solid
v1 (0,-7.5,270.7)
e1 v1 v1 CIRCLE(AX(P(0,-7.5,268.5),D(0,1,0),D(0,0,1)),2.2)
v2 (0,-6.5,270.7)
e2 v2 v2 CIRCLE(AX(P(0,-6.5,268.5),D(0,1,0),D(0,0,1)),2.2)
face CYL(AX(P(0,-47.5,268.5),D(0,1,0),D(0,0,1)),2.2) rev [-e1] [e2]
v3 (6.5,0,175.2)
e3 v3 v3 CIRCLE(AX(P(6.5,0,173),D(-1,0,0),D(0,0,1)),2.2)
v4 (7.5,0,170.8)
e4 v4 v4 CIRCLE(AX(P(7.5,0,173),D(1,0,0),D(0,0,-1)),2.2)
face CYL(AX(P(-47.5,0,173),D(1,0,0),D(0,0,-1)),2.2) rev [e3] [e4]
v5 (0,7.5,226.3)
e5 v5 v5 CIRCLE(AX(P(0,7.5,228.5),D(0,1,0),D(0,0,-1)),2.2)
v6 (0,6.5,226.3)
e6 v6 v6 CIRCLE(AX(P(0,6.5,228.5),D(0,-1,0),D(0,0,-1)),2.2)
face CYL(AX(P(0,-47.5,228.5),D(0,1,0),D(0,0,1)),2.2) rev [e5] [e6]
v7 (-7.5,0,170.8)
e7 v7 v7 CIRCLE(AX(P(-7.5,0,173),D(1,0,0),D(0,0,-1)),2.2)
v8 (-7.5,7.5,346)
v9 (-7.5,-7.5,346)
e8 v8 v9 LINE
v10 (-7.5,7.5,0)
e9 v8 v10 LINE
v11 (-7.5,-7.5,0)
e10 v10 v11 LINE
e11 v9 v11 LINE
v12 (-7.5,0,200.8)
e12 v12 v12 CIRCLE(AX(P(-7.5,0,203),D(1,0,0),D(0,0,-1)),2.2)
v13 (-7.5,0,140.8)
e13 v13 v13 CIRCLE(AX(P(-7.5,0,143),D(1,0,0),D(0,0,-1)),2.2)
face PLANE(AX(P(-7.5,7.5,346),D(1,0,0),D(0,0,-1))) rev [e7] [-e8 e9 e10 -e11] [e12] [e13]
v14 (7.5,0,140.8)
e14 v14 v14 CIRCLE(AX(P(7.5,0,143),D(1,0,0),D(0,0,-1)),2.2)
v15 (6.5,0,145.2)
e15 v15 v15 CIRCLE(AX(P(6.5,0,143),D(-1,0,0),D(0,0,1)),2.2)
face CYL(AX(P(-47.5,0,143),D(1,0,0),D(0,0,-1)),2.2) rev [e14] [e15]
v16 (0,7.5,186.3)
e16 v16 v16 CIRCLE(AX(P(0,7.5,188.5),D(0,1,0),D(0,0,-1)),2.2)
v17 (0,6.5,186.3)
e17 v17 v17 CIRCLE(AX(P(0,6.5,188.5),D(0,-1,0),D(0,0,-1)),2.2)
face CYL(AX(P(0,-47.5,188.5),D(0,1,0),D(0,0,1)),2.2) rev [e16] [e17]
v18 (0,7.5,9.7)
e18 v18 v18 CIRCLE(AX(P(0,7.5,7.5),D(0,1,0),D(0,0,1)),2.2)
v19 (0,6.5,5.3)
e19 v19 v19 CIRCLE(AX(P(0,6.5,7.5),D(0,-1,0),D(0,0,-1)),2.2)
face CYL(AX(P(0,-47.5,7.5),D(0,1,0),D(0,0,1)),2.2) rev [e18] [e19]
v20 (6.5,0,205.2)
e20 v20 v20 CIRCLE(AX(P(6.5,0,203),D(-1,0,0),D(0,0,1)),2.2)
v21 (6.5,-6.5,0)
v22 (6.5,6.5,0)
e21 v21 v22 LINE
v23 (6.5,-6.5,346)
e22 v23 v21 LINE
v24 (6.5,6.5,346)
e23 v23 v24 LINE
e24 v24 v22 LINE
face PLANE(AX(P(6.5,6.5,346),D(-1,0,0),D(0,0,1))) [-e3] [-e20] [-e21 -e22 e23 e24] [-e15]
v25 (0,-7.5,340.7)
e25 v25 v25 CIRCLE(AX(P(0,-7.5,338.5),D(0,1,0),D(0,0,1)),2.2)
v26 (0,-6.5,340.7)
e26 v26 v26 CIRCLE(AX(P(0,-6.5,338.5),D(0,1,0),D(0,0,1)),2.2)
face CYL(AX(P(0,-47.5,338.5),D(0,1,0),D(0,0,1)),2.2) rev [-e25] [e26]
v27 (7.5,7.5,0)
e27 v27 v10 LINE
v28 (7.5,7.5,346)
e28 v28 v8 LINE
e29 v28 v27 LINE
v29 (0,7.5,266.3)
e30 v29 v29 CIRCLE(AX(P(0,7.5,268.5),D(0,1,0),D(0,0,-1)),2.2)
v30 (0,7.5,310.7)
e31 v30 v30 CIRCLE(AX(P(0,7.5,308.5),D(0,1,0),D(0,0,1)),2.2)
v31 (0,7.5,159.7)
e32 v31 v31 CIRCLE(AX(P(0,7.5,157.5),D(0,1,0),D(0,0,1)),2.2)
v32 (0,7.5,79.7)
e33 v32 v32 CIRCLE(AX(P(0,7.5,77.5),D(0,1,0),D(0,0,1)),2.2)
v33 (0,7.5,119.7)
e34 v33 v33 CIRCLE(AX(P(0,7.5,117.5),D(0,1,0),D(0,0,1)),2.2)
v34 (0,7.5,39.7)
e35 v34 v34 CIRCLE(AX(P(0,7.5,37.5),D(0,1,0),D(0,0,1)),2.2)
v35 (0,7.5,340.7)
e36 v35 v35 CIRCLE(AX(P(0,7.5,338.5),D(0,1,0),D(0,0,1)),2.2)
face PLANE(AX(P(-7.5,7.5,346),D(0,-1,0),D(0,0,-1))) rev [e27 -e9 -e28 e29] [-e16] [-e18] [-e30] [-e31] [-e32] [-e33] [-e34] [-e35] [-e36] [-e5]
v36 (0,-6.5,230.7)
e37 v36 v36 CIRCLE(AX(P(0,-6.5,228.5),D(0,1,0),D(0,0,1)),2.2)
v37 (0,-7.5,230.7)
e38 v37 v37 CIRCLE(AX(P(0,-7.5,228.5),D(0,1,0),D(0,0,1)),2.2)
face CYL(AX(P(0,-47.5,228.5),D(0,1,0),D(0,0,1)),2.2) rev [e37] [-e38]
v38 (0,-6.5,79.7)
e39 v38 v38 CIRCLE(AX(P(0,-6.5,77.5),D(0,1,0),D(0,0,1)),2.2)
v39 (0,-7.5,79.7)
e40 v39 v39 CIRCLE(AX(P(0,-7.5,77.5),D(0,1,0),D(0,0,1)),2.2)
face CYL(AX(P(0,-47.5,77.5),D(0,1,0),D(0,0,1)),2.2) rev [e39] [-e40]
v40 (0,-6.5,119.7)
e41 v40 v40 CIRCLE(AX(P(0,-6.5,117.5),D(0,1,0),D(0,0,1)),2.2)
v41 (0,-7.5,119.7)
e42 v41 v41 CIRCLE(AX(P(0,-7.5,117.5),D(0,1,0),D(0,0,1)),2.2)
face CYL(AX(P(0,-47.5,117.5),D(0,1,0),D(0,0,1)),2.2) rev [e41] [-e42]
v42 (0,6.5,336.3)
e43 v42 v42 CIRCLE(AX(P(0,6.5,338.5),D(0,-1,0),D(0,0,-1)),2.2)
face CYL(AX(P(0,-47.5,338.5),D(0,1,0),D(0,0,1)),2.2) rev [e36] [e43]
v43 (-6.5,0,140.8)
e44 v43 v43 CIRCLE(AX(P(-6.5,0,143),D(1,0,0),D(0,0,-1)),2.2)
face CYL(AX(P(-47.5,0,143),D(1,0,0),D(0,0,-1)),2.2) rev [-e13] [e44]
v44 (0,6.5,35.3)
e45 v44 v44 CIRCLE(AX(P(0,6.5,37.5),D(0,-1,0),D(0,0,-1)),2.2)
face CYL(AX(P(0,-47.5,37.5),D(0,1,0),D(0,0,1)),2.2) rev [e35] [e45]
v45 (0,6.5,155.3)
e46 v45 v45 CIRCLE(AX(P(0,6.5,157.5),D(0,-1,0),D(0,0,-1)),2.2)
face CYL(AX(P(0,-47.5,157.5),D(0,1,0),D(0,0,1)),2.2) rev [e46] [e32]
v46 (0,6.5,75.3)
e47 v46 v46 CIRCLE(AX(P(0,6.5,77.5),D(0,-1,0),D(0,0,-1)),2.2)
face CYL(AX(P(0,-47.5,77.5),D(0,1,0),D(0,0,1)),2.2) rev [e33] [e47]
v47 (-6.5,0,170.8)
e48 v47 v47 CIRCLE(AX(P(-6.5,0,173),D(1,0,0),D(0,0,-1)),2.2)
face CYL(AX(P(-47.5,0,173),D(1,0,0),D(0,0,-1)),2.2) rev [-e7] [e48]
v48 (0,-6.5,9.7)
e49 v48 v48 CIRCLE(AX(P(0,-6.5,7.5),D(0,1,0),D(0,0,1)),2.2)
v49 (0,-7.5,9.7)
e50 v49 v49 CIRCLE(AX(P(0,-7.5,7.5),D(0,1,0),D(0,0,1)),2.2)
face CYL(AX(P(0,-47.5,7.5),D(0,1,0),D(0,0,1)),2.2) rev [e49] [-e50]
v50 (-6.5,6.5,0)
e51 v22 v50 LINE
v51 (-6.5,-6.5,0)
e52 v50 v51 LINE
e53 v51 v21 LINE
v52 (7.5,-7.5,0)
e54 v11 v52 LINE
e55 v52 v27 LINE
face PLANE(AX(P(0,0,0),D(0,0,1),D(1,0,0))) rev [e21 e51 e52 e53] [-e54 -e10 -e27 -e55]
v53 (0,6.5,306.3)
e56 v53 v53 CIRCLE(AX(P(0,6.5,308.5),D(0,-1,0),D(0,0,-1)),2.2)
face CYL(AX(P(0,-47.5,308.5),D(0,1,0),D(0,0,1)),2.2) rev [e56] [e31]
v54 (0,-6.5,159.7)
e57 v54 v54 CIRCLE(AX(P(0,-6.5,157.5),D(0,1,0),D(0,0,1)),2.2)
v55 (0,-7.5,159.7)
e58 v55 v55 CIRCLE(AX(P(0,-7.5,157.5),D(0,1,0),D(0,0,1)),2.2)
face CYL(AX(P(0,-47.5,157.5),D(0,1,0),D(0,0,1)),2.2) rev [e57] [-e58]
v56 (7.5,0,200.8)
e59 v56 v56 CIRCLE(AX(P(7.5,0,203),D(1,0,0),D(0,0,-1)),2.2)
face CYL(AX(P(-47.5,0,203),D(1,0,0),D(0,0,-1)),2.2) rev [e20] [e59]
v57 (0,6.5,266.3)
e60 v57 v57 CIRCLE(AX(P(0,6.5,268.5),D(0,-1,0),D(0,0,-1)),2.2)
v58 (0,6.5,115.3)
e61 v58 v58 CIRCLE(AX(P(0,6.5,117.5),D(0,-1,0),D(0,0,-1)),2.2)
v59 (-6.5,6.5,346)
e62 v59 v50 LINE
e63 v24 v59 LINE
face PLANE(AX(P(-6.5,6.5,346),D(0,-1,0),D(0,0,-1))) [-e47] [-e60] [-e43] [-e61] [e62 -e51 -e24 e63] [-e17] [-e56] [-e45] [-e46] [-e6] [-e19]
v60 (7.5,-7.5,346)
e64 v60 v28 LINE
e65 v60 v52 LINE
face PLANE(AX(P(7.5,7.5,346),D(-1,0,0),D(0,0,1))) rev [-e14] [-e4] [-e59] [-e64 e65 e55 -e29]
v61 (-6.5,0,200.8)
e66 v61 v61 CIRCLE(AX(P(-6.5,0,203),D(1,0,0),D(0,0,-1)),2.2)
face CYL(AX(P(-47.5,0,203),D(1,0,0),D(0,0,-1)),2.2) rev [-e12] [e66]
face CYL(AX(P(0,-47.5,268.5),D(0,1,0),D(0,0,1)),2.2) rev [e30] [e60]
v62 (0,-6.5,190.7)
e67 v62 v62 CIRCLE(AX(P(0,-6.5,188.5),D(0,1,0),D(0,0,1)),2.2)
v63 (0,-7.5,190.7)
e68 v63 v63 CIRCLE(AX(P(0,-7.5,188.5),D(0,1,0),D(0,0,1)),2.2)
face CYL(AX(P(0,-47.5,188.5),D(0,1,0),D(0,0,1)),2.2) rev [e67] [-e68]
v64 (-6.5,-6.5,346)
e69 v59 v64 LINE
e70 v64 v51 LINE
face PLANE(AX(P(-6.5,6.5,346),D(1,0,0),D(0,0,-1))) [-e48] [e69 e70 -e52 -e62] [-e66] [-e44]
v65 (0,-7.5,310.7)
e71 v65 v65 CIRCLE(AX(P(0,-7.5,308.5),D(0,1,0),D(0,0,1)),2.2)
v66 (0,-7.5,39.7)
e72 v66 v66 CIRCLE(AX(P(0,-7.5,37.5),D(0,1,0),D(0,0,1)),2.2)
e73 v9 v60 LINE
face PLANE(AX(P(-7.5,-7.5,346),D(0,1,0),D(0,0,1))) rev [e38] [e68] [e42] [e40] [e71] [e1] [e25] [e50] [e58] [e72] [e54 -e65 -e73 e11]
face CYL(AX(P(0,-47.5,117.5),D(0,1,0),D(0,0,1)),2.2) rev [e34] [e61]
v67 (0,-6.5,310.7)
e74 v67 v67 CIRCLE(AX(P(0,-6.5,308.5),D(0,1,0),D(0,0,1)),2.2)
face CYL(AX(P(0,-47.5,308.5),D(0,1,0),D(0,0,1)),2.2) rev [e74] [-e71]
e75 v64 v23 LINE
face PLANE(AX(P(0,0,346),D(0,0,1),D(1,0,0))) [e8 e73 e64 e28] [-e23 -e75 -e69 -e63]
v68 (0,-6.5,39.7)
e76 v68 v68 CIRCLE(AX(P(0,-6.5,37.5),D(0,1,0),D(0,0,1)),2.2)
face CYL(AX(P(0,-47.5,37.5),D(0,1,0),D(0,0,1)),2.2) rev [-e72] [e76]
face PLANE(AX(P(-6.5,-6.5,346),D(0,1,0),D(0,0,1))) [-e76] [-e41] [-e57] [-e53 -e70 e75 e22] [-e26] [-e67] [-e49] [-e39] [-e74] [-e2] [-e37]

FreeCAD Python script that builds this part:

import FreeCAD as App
import Part
import Sketcher
from FreeCAD import Vector
Q = App.Units.Quantity


def add_polygon(sketch, points):
    """Adds a closed chain of lines whose ends are joined by coincident constraints."""
    first, n = sketch.GeometryCount, len(points)
    for a, b in zip(points, points[1:] + points[:1]):
        sketch.addGeometry(Part.LineSegment(App.Vector(*a, 0), App.Vector(*b, 0)), False)
    for i in range(n):
        sketch.addConstraint(Sketcher.Constraint("Coincident", first + i, 2, first + (i + 1) % n, 1))

doc = App.newDocument("Part")
body = doc.addObject("PartDesign::Body", "Body")

sketch1 = doc.addObject("Sketcher::SketchObject", "Sketch")
body.addObject(sketch1)
sketch1.AttachmentSupport = (doc.XY_Plane, [""])
sketch1.MapMode = "FlatFace"
add_polygon(sketch1, [(-8, 8), (-8, -8), (8, -8), (8, 8)])
add_polygon(sketch1, [(6, -6), (-6, -6), (-6, 6), (6, 6)])
sketch1.addConstraint(Sketcher.Constraint("Vertical", 0))
sketch1.addConstraint(Sketcher.Constraint("Horizontal", 1))
sketch1.addConstraint(Sketcher.Constraint("Vertical", 2))
sketch1.addConstraint(Sketcher.Constraint("Horizontal", 3))
sketch1.addConstraint(Sketcher.Constraint("Horizontal", 4))
sketch1.addConstraint(Sketcher.Constraint("Vertical", 5))
sketch1.addConstraint(Sketcher.Constraint("Horizontal", 6))
sketch1.addConstraint(Sketcher.Constraint("Vertical", 7))
sketch1.addConstraint(Sketcher.Constraint("Symmetric", 0, 2, 2, 2, -1, 1))
sketch1.addConstraint(Sketcher.Constraint("Symmetric", 4, 2, 6, 2, -1, 1))
sketch1.addConstraint(Sketcher.Constraint("Equal", 3, 0))
sketch1.addConstraint(Sketcher.Constraint("Equal", 6, 5))
sketch1.addConstraint(Sketcher.Constraint("DistanceX", 1, 1, 1, 2, Q("15 mm")))
sketch1.addConstraint(Sketcher.Constraint("DistanceX", 4, 2, 4, 1, Q("13 mm")))
pad1 = doc.addObject("PartDesign::Pad", "Pad")
body.addObject(pad1)
pad1.Profile = sketch1
pad1.Length = 346

sketch2 = doc.addObject("Sketcher::SketchObject", "Sketch001")
body.addObject(sketch2)
sketch2.AttachmentSupport = (doc.XZ_Plane, [""])
sketch2.MapMode = "FlatFace"
sketch2.AttachmentOffset = App.Placement(Vector(0, 0, -7.5), App.Rotation())
sketch2.addGeometry(Part.Circle(Vector(0, 338.5, 0), Vector(0, 0, 1), 2.2), False)
sketch2.addGeometry(Part.Circle(Vector(0, 7.5, 0), Vector(0, 0, 1), 2.2), False)
sketch2.addGeometry(Part.Circle(Vector(0, 37.5, 0), Vector(0, 0, 1), 2.2), False)
sketch2.addGeometry(Part.Circle(Vector(0, 308.5, 0), Vector(0, 0, 1), 2.2), False)
sketch2.addGeometry(Part.Circle(Vector(0, 77.5, 0), Vector(0, 0, 1), 2.2), False)
sketch2.addGeometry(Part.Circle(Vector(0, 117.5, 0), Vector(0, 0, 1), 2.2), False)
sketch2.addGeometry(Part.Circle(Vector(0, 228.5, 0), Vector(0, 0, 1), 2.2), False)
sketch2.addGeometry(Part.Circle(Vector(0, 268.5, 0), Vector(0, 0, 1), 2.2), False)
sketch2.addGeometry(Part.Circle(Vector(0, 157.5, 0), Vector(0, 0, 1), 2.2), False)
sketch2.addGeometry(Part.Circle(Vector(0, 188.5, 0), Vector(0, 0, 1), 2.2), False)
sketch2.addConstraint(Sketcher.Constraint("Equal", 0, 1))
sketch2.addConstraint(Sketcher.Constraint("Equal", 1, 2))
sketch2.addConstraint(Sketcher.Constraint("Equal", 2, 3))
sketch2.addConstraint(Sketcher.Constraint("Equal", 3, 4))
sketch2.addConstraint(Sketcher.Constraint("Equal", 4, 5))
sketch2.addConstraint(Sketcher.Constraint("Equal", 5, 6))
sketch2.addConstraint(Sketcher.Constraint("Equal", 6, 7))
sketch2.addConstraint(Sketcher.Constraint("Equal", 7, 8))
sketch2.addConstraint(Sketcher.Constraint("Equal", 8, 9))
sketch2.addConstraint(Sketcher.Constraint("PointOnObject", 0, 3, -2))
sketch2.addConstraint(Sketcher.Constraint("PointOnObject", 1, 3, -2))
sketch2.addConstraint(Sketcher.Constraint("PointOnObject", 2, 3, -2))
sketch2.addConstraint(Sketcher.Constraint("PointOnObject", 3, 3, -2))
sketch2.addConstraint(Sketcher.Constraint("PointOnObject", 4, 3, -2))
sketch2.addConstraint(Sketcher.Constraint("PointOnObject", 5, 3, -2))
sketch2.addConstraint(Sketcher.Constraint("PointOnObject", 6, 3, -2))
sketch2.addConstraint(Sketcher.Constraint("PointOnObject", 7, 3, -2))
sketch2.addConstraint(Sketcher.Constraint("PointOnObject", 8, 3, -2))
sketch2.addConstraint(Sketcher.Constraint("PointOnObject", 9, 3, -2))
sketch2.addConstraint(Sketcher.Constraint("Diameter", 0, Q("4.4 mm")))
sketch2.addConstraint(Sketcher.Constraint("DistanceY", 1, 3, 0, 3, Q("331 mm")))
sketch2.addConstraint(Sketcher.Constraint("DistanceY", 1, 3, 2, 3, Q("30 mm")))
sketch2.addConstraint(Sketcher.Constraint("DistanceY", 3, 3, 0, 3, Q("30 mm")))
sketch2.addConstraint(Sketcher.Constraint("DistanceY", 2, 3, 4, 3, Q("40 mm")))
sketch2.addConstraint(Sketcher.Constraint("DistanceY", 4, 3, 5, 3, Q("40 mm")))
sketch2.addConstraint(Sketcher.Constraint("DistanceY", 6, 3, 3, 3, Q("80 mm")))
sketch2.addConstraint(Sketcher.Constraint("DistanceY", 7, 3, 3, 3, Q("40 mm")))
sketch2.addConstraint(Sketcher.Constraint("DistanceY", 5, 3, 8, 3, Q("40 mm")))
sketch2.addConstraint(Sketcher.Constraint("DistanceY", 8, 3, 9, 3, Q("31 mm")))
sketch2.addConstraint(Sketcher.Constraint("DistanceY", -1, 1, 0, 3, Q("338.5 mm")))
pocket1 = doc.addObject("PartDesign::Pocket", "Pocket")
body.addObject(pocket1)
pocket1.Profile = sketch2
pocket1.Length = 55
pocket1.Reversed = True

sketch3 = doc.addObject("Sketcher::SketchObject", "Sketch002")
body.addObject(sketch3)
sketch3.AttachmentSupport = (doc.YZ_Plane, [""])
sketch3.MapMode = "FlatFace"
sketch3.AttachmentOffset = App.Placement(Vector(0, 0, 7.5), App.Rotation())
sketch3.addGeometry(Part.Circle(Vector(0, 173, 0), Vector(0, 0, 1), 2.2), False)
sketch3.addGeometry(Part.Circle(Vector(0, 203, 0), Vector(0, 0, 1), 2.2), False)
sketch3.addGeometry(Part.Circle(Vector(0, 143, 0), Vector(0, 0, 1), 2.2), False)
sketch3.addConstraint(Sketcher.Constraint("Equal", 0, 1))
sketch3.addConstraint(Sketcher.Constraint("Equal", 1, 2))
sketch3.addConstraint(Sketcher.Constraint("PointOnObject", 0, 3, -2))
sketch3.addConstraint(Sketcher.Constraint("PointOnObject", 1, 3, -2))
sketch3.addConstraint(Sketcher.Constraint("PointOnObject", 2, 3, -2))
sketch3.addConstraint(Sketcher.Constraint("Diameter", 0, Q("4.4 mm")))
sketch3.addConstraint(Sketcher.Constraint("DistanceY", -1, 1, 0, 3, Q("173 mm")))
sketch3.addConstraint(Sketcher.Constraint("DistanceY", -1, 1, 1, 3, Q("203 mm")))
sketch3.addConstraint(Sketcher.Constraint("DistanceY", -1, 1, 2, 3, Q("143 mm")))
pocket2 = doc.addObject("PartDesign::Pocket", "Pocket001")
body.addObject(pocket2)
pocket2.Profile = sketch3
pocket2.Length = 55

doc.recompute()
